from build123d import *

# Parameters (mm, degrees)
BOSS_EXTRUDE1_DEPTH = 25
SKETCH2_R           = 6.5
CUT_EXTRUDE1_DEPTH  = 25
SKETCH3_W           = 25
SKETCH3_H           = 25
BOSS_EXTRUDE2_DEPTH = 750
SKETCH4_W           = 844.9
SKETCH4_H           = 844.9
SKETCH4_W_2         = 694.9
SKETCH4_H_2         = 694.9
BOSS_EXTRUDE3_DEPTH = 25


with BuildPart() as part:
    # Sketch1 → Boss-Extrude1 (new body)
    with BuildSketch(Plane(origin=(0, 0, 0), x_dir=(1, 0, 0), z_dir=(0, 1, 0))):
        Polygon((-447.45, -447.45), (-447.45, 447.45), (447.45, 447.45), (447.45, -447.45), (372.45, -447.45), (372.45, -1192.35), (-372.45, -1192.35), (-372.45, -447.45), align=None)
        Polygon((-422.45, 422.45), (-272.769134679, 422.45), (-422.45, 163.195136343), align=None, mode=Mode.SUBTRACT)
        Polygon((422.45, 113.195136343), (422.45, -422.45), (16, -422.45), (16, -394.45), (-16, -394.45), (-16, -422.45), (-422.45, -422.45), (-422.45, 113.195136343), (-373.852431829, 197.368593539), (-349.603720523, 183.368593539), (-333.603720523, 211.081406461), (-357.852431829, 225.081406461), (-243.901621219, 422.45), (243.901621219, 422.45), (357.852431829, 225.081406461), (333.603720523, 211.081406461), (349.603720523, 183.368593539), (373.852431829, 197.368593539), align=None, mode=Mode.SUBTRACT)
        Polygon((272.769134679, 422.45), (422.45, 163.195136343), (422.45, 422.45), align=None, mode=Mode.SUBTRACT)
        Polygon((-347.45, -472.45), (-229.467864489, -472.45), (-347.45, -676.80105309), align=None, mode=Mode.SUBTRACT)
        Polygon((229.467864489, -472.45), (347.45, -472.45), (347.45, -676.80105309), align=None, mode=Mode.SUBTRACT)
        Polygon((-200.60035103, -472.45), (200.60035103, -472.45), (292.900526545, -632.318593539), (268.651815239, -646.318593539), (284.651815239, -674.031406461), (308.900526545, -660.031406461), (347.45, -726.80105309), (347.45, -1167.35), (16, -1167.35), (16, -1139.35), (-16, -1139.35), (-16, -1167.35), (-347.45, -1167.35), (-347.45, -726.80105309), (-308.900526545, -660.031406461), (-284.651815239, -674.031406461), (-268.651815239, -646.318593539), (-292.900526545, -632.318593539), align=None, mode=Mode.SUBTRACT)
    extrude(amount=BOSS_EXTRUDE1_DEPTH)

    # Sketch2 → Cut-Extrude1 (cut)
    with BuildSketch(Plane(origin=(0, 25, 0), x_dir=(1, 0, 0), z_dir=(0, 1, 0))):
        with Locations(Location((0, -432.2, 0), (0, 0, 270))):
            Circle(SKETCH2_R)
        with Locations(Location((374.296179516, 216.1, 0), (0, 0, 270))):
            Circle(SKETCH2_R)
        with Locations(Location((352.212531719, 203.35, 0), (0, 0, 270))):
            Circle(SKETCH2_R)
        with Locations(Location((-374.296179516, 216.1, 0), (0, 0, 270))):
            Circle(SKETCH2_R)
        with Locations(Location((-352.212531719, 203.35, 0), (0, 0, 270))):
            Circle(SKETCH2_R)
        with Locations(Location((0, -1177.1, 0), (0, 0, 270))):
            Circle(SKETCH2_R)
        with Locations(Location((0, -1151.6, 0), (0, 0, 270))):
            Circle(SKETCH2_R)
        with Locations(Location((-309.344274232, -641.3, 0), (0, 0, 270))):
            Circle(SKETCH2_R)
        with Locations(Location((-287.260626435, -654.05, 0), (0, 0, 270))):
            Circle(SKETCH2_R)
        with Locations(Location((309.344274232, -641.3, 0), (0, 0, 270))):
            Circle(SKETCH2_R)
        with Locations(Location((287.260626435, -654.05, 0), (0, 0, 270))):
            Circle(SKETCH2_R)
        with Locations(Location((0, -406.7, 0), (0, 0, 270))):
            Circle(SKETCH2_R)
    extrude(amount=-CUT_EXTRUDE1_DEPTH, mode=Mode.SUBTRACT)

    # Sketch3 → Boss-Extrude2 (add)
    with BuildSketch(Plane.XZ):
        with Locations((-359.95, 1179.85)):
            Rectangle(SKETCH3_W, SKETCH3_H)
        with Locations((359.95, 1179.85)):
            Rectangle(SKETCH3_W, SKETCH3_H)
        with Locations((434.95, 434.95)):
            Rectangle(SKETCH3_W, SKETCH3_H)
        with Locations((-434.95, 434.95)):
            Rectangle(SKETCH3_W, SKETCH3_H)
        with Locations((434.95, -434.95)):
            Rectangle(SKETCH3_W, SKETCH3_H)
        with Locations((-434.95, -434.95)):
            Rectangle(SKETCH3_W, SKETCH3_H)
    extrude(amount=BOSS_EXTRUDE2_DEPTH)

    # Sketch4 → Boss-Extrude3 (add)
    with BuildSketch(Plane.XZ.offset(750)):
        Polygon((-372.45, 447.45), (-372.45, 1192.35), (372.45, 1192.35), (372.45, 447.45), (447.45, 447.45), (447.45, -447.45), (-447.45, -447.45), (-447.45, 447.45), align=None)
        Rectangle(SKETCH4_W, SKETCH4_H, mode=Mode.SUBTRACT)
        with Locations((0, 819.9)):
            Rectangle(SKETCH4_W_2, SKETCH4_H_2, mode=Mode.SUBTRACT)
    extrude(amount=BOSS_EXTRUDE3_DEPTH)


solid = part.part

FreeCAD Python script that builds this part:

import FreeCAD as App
import Part
import Sketcher
from FreeCAD import Vector
Q = App.Units.Quantity


def add_polygon(sketch, points):
    """Adds a closed chain of lines whose ends are joined by coincident constraints."""
    first, n = sketch.GeometryCount, len(points)
    for a, b in zip(points, points[1:] + points[:1]):
        sketch.addGeometry(Part.LineSegment(App.Vector(*a, 0), App.Vector(*b, 0)), False)
    for i in range(n):
        sketch.addConstraint(Sketcher.Constraint("Coincident", first + i, 2, first + (i + 1) % n, 1))

doc = App.newDocument("Part")
body = doc.addObject("PartDesign::Body", "Body")

# Sketch on XZ plane
sketch1 = doc.addObject("Sketcher::SketchObject", "Sketch")
body.addObject(sketch1)
sketch1.AttachmentSupport = (doc.XZ_Plane, [""])
sketch1.MapMode = "FlatFace"
add_polygon(sketch1, [(-447, -447), (-447, 447), (-372, 447), (-372, 1192), (372, 1192), (372, 447), (447, 447), (447, -447)])  # lines 0-7
add_polygon(sketch1, [(-201, 472), (201, 472), (293, 632), (269, 646), (285, 674), (309, 660), (347, 727), (347, 1167), (16, 1167), (16, 1139), (-16, 1139), (-16, 1167), (-347, 1167), (-347, 727), (-309, 660), (-285, 674), (-269, 646), (-293, 632)])  # lines 8-25
add_polygon(sketch1, [(229, 472), (347, 472), (347, 677)])  # lines 26-28
add_polygon(sketch1, [(-347, 472), (-229, 472), (-347, 677)])  # lines 29-31
add_polygon(sketch1, [(422, -113), (422, 422), (16, 422), (16, 394), (-16, 394), (-16, 422), (-422, 422), (-422, -113), (-374, -197), (-350, -183), (-334, -211), (-358, -225), (-244, -422), (244, -422), (358, -225), (334, -211), (350, -183), (374, -197)])  # lines 32-49
add_polygon(sketch1, [(273, -422), (422, -422), (422, -163)])  # lines 50-52
add_polygon(sketch1, [(-422, -422), (-273, -422), (-422, -163)])  # lines 53-55
sketch1.addConstraint(Sketcher.Constraint("Vertical", 0))
sketch1.addConstraint(Sketcher.Constraint("Horizontal", 1))
sketch1.addConstraint(Sketcher.Constraint("Vertical", 2))
sketch1.addConstraint(Sketcher.Constraint("Horizontal", 3))
sketch1.addConstraint(Sketcher.Constraint("Vertical", 4))
sketch1.addConstraint(Sketcher.Constraint("Horizontal", 5))
sketch1.addConstraint(Sketcher.Constraint("Vertical", 6))
sketch1.addConstraint(Sketcher.Constraint("Horizontal", 7))
sketch1.addConstraint(Sketcher.Constraint("Horizontal", 8))
sketch1.addConstraint(Sketcher.Constraint("Vertical", 14))
sketch1.addConstraint(Sketcher.Constraint("Horizontal", 15))
sketch1.addConstraint(Sketcher.Constraint("Vertical", 16))
sketch1.addConstraint(Sketcher.Constraint("Horizontal", 17))
sketch1.addConstraint(Sketcher.Constraint("Vertical", 18))
sketch1.addConstraint(Sketcher.Constraint("Horizontal", 19))
sketch1.addConstraint(Sketcher.Constraint("Vertical", 20))
sketch1.addConstraint(Sketcher.Constraint("Horizontal", 26))
sketch1.addConstraint(Sketcher.Constraint("Vertical", 27))
sketch1.addConstraint(Sketcher.Constraint("Horizontal", 29))
sketch1.addConstraint(Sketcher.Constraint("Vertical", 31))
sketch1.addConstraint(Sketcher.Constraint("Vertical", 32))
sketch1.addConstraint(Sketcher.Constraint("Horizontal", 33))
sketch1.addConstraint(Sketcher.Constraint("Vertical", 34))
sketch1.addConstraint(Sketcher.Constraint("Horizontal", 35))
sketch1.addConstraint(Sketcher.Constraint("Vertical", 36))
sketch1.addConstraint(Sketcher.Constraint("Horizontal", 37))
sketch1.addConstraint(Sketcher.Constraint("Vertical", 38))
sketch1.addConstraint(Sketcher.Constraint("Horizontal", 44))
sketch1.addConstraint(Sketcher.Constraint("Horizontal", 50))
sketch1.addConstraint(Sketcher.Constraint("Vertical", 51))
sketch1.addConstraint(Sketcher.Constraint("Horizontal", 53))
sketch1.addConstraint(Sketcher.Constraint("Vertical", 55))
sketch1.addConstraint(Sketcher.Constraint("Symmetric", 0, 2, 6, 2, -1, 1))
sketch1.addConstraint(Sketcher.Constraint("Symmetric", 37, 2, 50, 2, -1, 1))
sketch1.addConstraint(Sketcher.Constraint("Symmetric", 32, 2, 55, 2, -1, 1))
sketch1.addConstraint(Sketcher.Constraint("Symmetric", 1, 2, 4, 2, -2))
sketch1.addConstraint(Sketcher.Constraint("Symmetric", 15, 2, 18, 2, -2))
sketch1.addConstraint(Sketcher.Constraint("Symmetric", 13, 2, 20, 2, -2))
sketch1.addConstraint(Sketcher.Constraint("Symmetric", 12, 2, 21, 2, -2))
sketch1.addConstraint(Sketcher.Constraint("Symmetric", 11, 2, 22, 2, -2))
sketch1.addConstraint(Sketcher.Constraint("Symmetric", 10, 2, 23, 2, -2))
sketch1.addConstraint(Sketcher.Constraint("Symmetric", 9, 2, 24, 2, -2))
sketch1.addConstraint(Sketcher.Constraint("Symmetric", 28, 2, 29, 2, -2))
sketch1.addConstraint(Sketcher.Constraint("Symmetric", 27, 2, 30, 2, -2))
sketch1.addConstraint(Sketcher.Constraint("Symmetric", 33, 2, 36, 2, -2))
sketch1.addConstraint(Sketcher.Constraint("Symmetric", 42, 2, 45, 2, -2))
sketch1.addConstraint(Sketcher.Constraint("Symmetric", 41, 2, 46, 2, -2))
sketch1.addConstraint(Sketcher.Constraint("Symmetric", 40, 2, 47, 2, -2))
sketch1.addConstraint(Sketcher.Constraint("Symmetric", 39, 2, 48, 2, -2))
sketch1.addConstraint(Sketcher.Constraint("Symmetric", 38, 2, 49, 2, -2))
sketch1.addConstraint(Sketcher.Constraint("Perpendicular", 9, 10))
sketch1.addConstraint(Sketcher.Constraint("Perpendicular", 10, 11))
sketch1.addConstraint(Sketcher.Constraint("Perpendicular", 11, 12))
sketch1.addConstraint(Sketcher.Constraint("Perpendicular", 12, 13))
sketch1.addConstraint(Sketcher.Constraint("Perpendicular", 24, 25))
sketch1.addConstraint(Sketcher.Constraint("Parallel", 13, 28))
sketch1.addConstraint(Sketcher.Constraint("Parallel", 30, 39))
sketch1.addConstraint(Sketcher.Constraint("Perpendicular", 39, 40))
sketch1.addConstraint(Sketcher.Constraint("Perpendicular", 40, 41))
sketch1.addConstraint(Sketcher.Constraint("Perpendicular", 41, 42))
sketch1.addConstraint(Sketcher.Constraint("Perpendicular", 42, 43))
sketch1.addConstraint(Sketcher.Constraint("Parallel", 28, 45))
sketch1.addConstraint(Sketcher.Constraint("Parallel", 49, 52))
sketch1.addConstraint(Sketcher.Constraint("Parallel", 43, 54))
sketch1.addConstraint(Sketcher.Constraint("Horizontal", 25, 2, 26, 2))
sketch1.addConstraint(Sketcher.Constraint("Horizontal", 44, 2, 50, 2))
sketch1.addConstraint(Sketcher.Constraint("Horizontal", 51, 2, 54, 2))
sketch1.addConstraint(Sketcher.Constraint("Vertical", 14, 2, 26, 2))
sketch1.addConstraint(Sketcher.Constraint("Vertical", 16, 2, 33, 2))
sketch1.addConstraint(Sketcher.Constraint("Equal", 7, 0))
sketch1.addConstraint(Sketcher.Constraint("Equal", 3, 2))
sketch1.addConstraint(Sketcher.Constraint("Equal", 18, 34))
sketch1.addConstraint(Sketcher.Constraint("Equal", 10, 12))
sketch1.addConstraint(Sketcher.Constraint("Equal", 24, 40))
sketch1.addConstraint(Sketcher.Constraint("Equal", 23, 41))
sketch1.addConstraint(Sketcher.Constraint("Equal", 40, 42))
sketch1.addConstraint(Sketcher.Constraint("DistanceX", 1, 1, 1, 2, Q("75 mm")))
sketch1.addConstraint(Sketcher.Constraint("DistanceX", 17, 2, 17, 1, Q("32 mm")))
sketch1.addConstraint(Sketcher.Constraint("DistanceY", 16, 2, 16, 1, Q("28 mm")))
sketch1.addConstraint(Sketcher.Constraint("Angle", 9, Q("60 deg")))
sketch1.addConstraint(Sketcher.Constraint("Distance", 10, Q("28 mm")))
sketch1.addConstraint(Sketcher.Constraint("Distance", 11, Q("32 mm")))
sketch1.addConstraint(Sketcher.Constraint("DistanceX", 3, 1, 3, 2, Q("744.9 mm")))
sketch1.addConstraint(Sketcher.Constraint("DistanceY", 4, 2, 8, 2, Q("25 mm")))
sketch1.addConstraint(Sketcher.Constraint("DistanceX", 13, 2, 4, 2, Q("25 mm")))
sketch1.addConstraint(Sketcher.Constraint("DistanceY", 14, 2, 3, 2, Q("25 mm")))
sketch1.addConstraint(Sketcher.Constraint("DistanceY", 27, 2, 13, 2, Q("50 mm")))
sketch1.addConstraint(Sketcher.Constraint("DistanceX", 32, 2, 5, 2, Q("25 mm")))
sketch1.addConstraint(Sketcher.Constraint("DistanceY", 32, 2, 5, 2, Q("25 mm")))
sketch1.addConstraint(Sketcher.Constraint("DistanceY", 51, 2, 49, 2, Q("50 mm")))
sketch1.addConstraint(Sketcher.Constraint("DistanceX", 41, 2, 43, 2, Q("89.702099 mm")))
sketch1.addConstraint(Sketcher.Constraint("Distance", 9, Q("184.600351 mm")))
sketch1.addConstraint(Sketcher.Constraint("Distance", 28, Q("235.964271 mm")))
sketch1.addConstraint(Sketcher.Constraint("Distance", 52, Q("299.361731 mm")))
pad1 = doc.addObject("PartDesign::Pad", "Pad")
body.addObject(pad1)
pad1.Profile = sketch1
pad1.Length = 25
pad1.Reversed = True

# Sketch on XZ plane
sketch2 = doc.addObject("Sketcher::SketchObject", "Sketch001")
body.addObject(sketch2)
sketch2.AttachmentSupport = (doc.XZ_Plane, [""])
sketch2.MapMode = "FlatFace"
sketch2.AttachmentOffset = App.Placement(Vector(0, 0, -25), App.Rotation())
sketch2.addGeometry(Part.Circle(Vector(0, 432, 0), Vector(0, 0, 1), 6), False)
sketch2.addGeometry(Part.Circle(Vector(374, -216, 0), Vector(0, 0, 1), 6), False)
sketch2.addGeometry(Part.Circle(Vector(352, -203, 0), Vector(0, 0, 1), 6), False)
sketch2.addGeometry(Part.Circle(Vector(-374, -216, 0), Vector(0, 0, 1), 6), False)
sketch2.addGeometry(Part.Circle(Vector(-352, -203, 0), Vector(0, 0, 1), 6), False)
sketch2.addGeometry(Part.Circle(Vector(0, 1177, 0), Vector(0, 0, 1), 6), False)
sketch2.addGeometry(Part.Circle(Vector(0, 1152, 0), Vector(0, 0, 1), 6), False)
sketch2.addGeometry(Part.Circle(Vector(-309, 641, 0), Vector(0, 0, 1), 6), False)
sketch2.addGeometry(Part.Circle(Vector(-287, 654, 0), Vector(0, 0, 1), 6), False)
sketch2.addGeometry(Part.Circle(Vector(309, 641, 0), Vector(0, 0, 1), 6), False)
sketch2.addGeometry(Part.Circle(Vector(287, 654, 0), Vector(0, 0, 1), 6), False)
sketch2.addGeometry(Part.Circle(Vector(0, 407, 0), Vector(0, 0, 1), 6), False)
sketch2.addConstraint(Sketcher.Constraint("Equal", 0, 1))
sketch2.addConstraint(Sketcher.Constraint("Equal", 1, 2))
sketch2.addConstraint(Sketcher.Constraint("Equal", 2, 3))
sketch2.addConstraint(Sketcher.Constraint("Equal", 3, 4))
sketch2.addConstraint(Sketcher.Constraint("Equal", 4, 5))
sketch2.addConstraint(Sketcher.Constraint("Equal", 5, 6))
sketch2.addConstraint(Sketcher.Constraint("Equal", 6, 7))
sketch2.addConstraint(Sketcher.Constraint("Equal", 7, 8))
sketch2.addConstraint(Sketcher.Constraint("Equal", 8, 9))
sketch2.addConstraint(Sketcher.Constraint("Equal", 9, 10))
sketch2.addConstraint(Sketcher.Constraint("Equal", 10, 11))
sketch2.addConstraint(Sketcher.Constraint("Symmetric", 1, 3, 3, 3, -2))
sketch2.addConstraint(Sketcher.Constraint("Symmetric", 2, 3, 4, 3, -2))
sketch2.addConstraint(Sketcher.Constraint("Symmetric", 7, 3, 9, 3, -2))
sketch2.addConstraint(Sketcher.Constraint("Symmetric", 8, 3, 10, 3, -2))
sketch2.addConstraint(Sketcher.Constraint("PointOnObject", 0, 3, -2))
sketch2.addConstraint(Sketcher.Constraint("PointOnObject", 5, 3, -2))
sketch2.addConstraint(Sketcher.Constraint("PointOnObject", 6, 3, -2))
sketch2.addConstraint(Sketcher.Constraint("PointOnObject", 11, 3, -2))
sketch2.addConstraint(Sketcher.Constraint("Diameter", 0, Q("13 mm")))
sketch2.addConstraint(Sketcher.Constraint("DistanceY", -1, 1, 0, 3, Q("432.2 mm")))
sketch2.addConstraint(Sketcher.Constraint("DistanceY", 1, 3, -1, 1, Q("216.1 mm")))
sketch2.addConstraint(Sketcher.Constraint("DistanceY", -1, 1, 5, 3, Q("1177.1 mm")))
sketch2.addConstraint(Sketcher.Constraint("DistanceY", -1, 1, 6, 3, Q("1151.6 mm")))
sketch2.addConstraint(Sketcher.Constraint("DistanceY", -1, 1, 7, 3, Q("641.3 mm")))
sketch2.addConstraint(Sketcher.Constraint("DistanceY", -1, 1, 11, 3, Q("406.7 mm")))
sketch2.addConstraint(Sketcher.Constraint("DistanceY", 4, 3, 8, 3, Q("857.4 mm")))
sketch2.addConstraint(Sketcher.Constraint("DistanceY", 2, 3, -1, 1, Q("203.35 mm")))
sketch2.addConstraint(Sketcher.Constraint("DistanceX", 8, 3, 9, 3, Q("596.604901 mm")))
sketch2.addConstraint(Sketcher.Constraint("DistanceX", -1, 1, 1, 3, Q("374.29618 mm")))
sketch2.addConstraint(Sketcher.Constraint("DistanceX", -1, 1, 2, 3, Q("352.212532 mm")))
sketch2.addConstraint(Sketcher.Constraint("DistanceX", 7, 3, 9, 3, Q("618.688548 mm")))
pocket1 = doc.addObject("PartDesign::Pocket", "Pocket")
body.addObject(pocket1)
pocket1.Profile = sketch2
pocket1.Length = 25
pocket1.Reversed = True

# Sketch on XZ plane
sketch3 = doc.addObject("Sketcher::SketchObject", "Sketch002")
body.addObject(sketch3)
sketch3.AttachmentSupport = (doc.XZ_Plane, [""])
sketch3.MapMode = "FlatFace"
add_polygon(sketch3, [(-372, 1192), (-372, 1167), (-347, 1167), (-347, 1192)])  # lines 0-3
add_polygon(sketch3, [(347, 1192), (347, 1167), (372, 1167), (372, 1192)])  # lines 4-7
add_polygon(sketch3, [(422, 447), (422, 422), (447, 422), (447, 447)])  # lines 8-11
add_polygon(sketch3, [(-447, 447), (-447, 422), (-422, 422), (-422, 447)])  # lines 12-15
add_polygon(sketch3, [(422, -422), (422, -447), (447, -447), (447, -422)])  # lines 16-19
add_polygon(sketch3, [(-447, -422), (-447, -447), (-422, -447), (-422, -422)])  # lines 20-23
sketch3.addConstraint(Sketcher.Constraint("Vertical", 0))
sketch3.addConstraint(Sketcher.Constraint("Horizontal", 1))
sketch3.addConstraint(Sketcher.Constraint("Vertical", 2))
sketch3.addConstraint(Sketcher.Constraint("Horizontal", 3))
sketch3.addConstraint(Sketcher.Constraint("Vertical", 4))
sketch3.addConstraint(Sketcher.Constraint("Horizontal", 5))
sketch3.addConstraint(Sketcher.Constraint("Vertical", 6))
sketch3.addConstraint(Sketcher.Constraint("Horizontal", 7))
sketch3.addConstraint(Sketcher.Constraint("Vertical", 8))
sketch3.addConstraint(Sketcher.Constraint("Horizontal", 9))
sketch3.addConstraint(Sketcher.Constraint("Vertical", 10))
sketch3.addConstraint(Sketcher.Constraint("Horizontal", 11))
sketch3.addConstraint(Sketcher.Constraint("Vertical", 12))
sketch3.addConstraint(Sketcher.Constraint("Horizontal", 13))
sketch3.addConstraint(Sketcher.Constraint("Vertical", 14))
sketch3.addConstraint(Sketcher.Constraint("Horizontal", 15))
sketch3.addConstraint(Sketcher.Constraint("Vertical", 16))
sketch3.addConstraint(Sketcher.Constraint("Horizontal", 17))
sketch3.addConstraint(Sketcher.Constraint("Vertical", 18))
sketch3.addConstraint(Sketcher.Constraint("Horizontal", 19))
sketch3.addConstraint(Sketcher.Constraint("Vertical", 20))
sketch3.addConstraint(Sketcher.Constraint("Horizontal", 21))
sketch3.addConstraint(Sketcher.Constraint("Vertical", 22))
sketch3.addConstraint(Sketcher.Constraint("Horizontal", 23))
sketch3.addConstraint(Sketcher.Constraint("Symmetric", 14, 2, 16, 2, -1, 1))
sketch3.addConstraint(Sketcher.Constraint("Symmetric", 12, 2, 18, 2, -1, 1))
sketch3.addConstraint(Sketcher.Constraint("Symmetric", 10, 2, 20, 2, -1, 1))
sketch3.addConstraint(Sketcher.Constraint("Symmetric", 8, 2, 22, 2, -1, 1))
sketch3.addConstraint(Sketcher.Constraint("Symmetric", 1, 2, 4, 2, -2))
sketch3.addConstraint(Sketcher.Constraint("Symmetric", 3, 2, 6, 2, -2))
sketch3.addConstraint(Sketcher.Constraint("Symmetric", 9, 2, 12, 2, -2))
sketch3.addConstraint(Sketcher.Constraint("Symmetric", 11, 2, 14, 2, -2))
sketch3.addConstraint(Sketcher.Constraint("Equal", 7, 9))
sketch3.addConstraint(Sketcher.Constraint("Equal", 23, 0))
sketch3.addConstraint(Sketcher.Constraint("Equal", 6, 8))
sketch3.addConstraint(Sketcher.Constraint("DistanceX", 1, 1, 1, 2, Q("25 mm")))
sketch3.addConstraint(Sketcher.Constraint("DistanceX", 5, 2, 8, 2, Q("50 mm")))
sketch3.addConstraint(Sketcher.Constraint("DistanceX", 1, 2, 4, 2, Q("694.9 mm")))
sketch3.addConstraint(Sketcher.Constraint("DistanceY", 8, 2, 5, 2, Q("744.9 mm")))
sketch3.addConstraint(Sketcher.Constraint("DistanceY", 16, 2, 8, 2, Q("869.9 mm")))
pad2 = doc.addObject("PartDesign::Pad", "Pad001")
body.addObject(pad2)
pad2.Profile = sketch3
pad2.Length = 750

# Sketch on XZ plane
sketch4 = doc.addObject("Sketcher::SketchObject", "Sketch003")
body.addObject(sketch4)
sketch4.AttachmentSupport = (doc.XZ_Plane, [""])
sketch4.MapMode = "FlatFace"
sketch4.AttachmentOffset = App.Placement(Vector(0, 0, 750), App.Rotation())
add_polygon(sketch4, [(-372, 1192), (-372, 447), (-447, 447), (-447, -447), (447, -447), (447, 447), (372, 447), (372, 1192)])  # lines 0-7
add_polygon(sketch4, [(-422, -422), (-422, 422), (422, 422), (422, -422)])  # lines 8-11
add_polygon(sketch4, [(-347, 472), (-347, 1167), (347, 1167), (347, 472)])  # lines 12-15
sketch4.addConstraint(Sketcher.Constraint("Vertical", 0))
sketch4.addConstraint(Sketcher.Constraint("Horizontal", 1))
sketch4.addConstraint(Sketcher.Constraint("Vertical", 2))
sketch4.addConstraint(Sketcher.Constraint("Horizontal", 3))
sketch4.addConstraint(Sketcher.Constraint("Vertical", 4))
sketch4.addConstraint(Sketcher.Constraint("Horizontal", 5))
sketch4.addConstraint(Sketcher.Constraint("Vertical", 6))
sketch4.addConstraint(Sketcher.Constraint("Horizontal", 7))
sketch4.addConstraint(Sketcher.Constraint("Vertical", 8))
sketch4.addConstraint(Sketcher.Constraint("Horizontal", 9))
sketch4.addConstraint(Sketcher.Constraint("Vertical", 10))
sketch4.addConstraint(Sketcher.Constraint("Horizontal", 11))
sketch4.addConstraint(Sketcher.Constraint("Vertical", 12))
sketch4.addConstraint(Sketcher.Constraint("Horizontal", 13))
sketch4.addConstraint(Sketcher.Constraint("Vertical", 14))
sketch4.addConstraint(Sketcher.Constraint("Horizontal", 15))
sketch4.addConstraint(Sketcher.Constraint("Symmetric", 1, 2, 3, 2, -1, 1))
sketch4.addConstraint(Sketcher.Constraint("Symmetric", 8, 2, 10, 2, -1, 1))
sketch4.addConstraint(Sketcher.Constraint("Symmetric", 0, 2, 5, 2, -2))
sketch4.addConstraint(Sketcher.Constraint("Equal", 7, 0))
sketch4.addConstraint(Sketcher.Constraint("Equal", 3, 2))
sketch4.addConstraint(Sketcher.Constraint("Equal", 11, 8))
sketch4.addConstraint(Sketcher.Constraint("Equal", 15, 12))
sketch4.addConstraint(Sketcher.Constraint("DistanceX", 1, 2, 1, 1, Q("75 mm")))
sketch4.addConstraint(Sketcher.Constraint("DistanceX", 3, 1, 3, 2, Q("894.9 mm")))
sketch4.addConstraint(Sketcher.Constraint("DistanceX", 9, 1, 9, 2, Q("844.9 mm")))
sketch4.addConstraint(Sketcher.Constraint("DistanceX", 13, 1, 13, 2, Q("694.9 mm")))
sketch4.addConstraint(Sketcher.Constraint("DistanceX", 7, 2, 12, 2, Q("25 mm")))
sketch4.addConstraint(Sketcher.Constraint("DistanceY", 12, 2, 7, 2, Q("25 mm")))
pad3 = doc.addObject("PartDesign::Pad", "Pad002")
body.addObject(pad3)
pad3.Profile = sketch4
pad3.Length = 25

doc.recompute()
